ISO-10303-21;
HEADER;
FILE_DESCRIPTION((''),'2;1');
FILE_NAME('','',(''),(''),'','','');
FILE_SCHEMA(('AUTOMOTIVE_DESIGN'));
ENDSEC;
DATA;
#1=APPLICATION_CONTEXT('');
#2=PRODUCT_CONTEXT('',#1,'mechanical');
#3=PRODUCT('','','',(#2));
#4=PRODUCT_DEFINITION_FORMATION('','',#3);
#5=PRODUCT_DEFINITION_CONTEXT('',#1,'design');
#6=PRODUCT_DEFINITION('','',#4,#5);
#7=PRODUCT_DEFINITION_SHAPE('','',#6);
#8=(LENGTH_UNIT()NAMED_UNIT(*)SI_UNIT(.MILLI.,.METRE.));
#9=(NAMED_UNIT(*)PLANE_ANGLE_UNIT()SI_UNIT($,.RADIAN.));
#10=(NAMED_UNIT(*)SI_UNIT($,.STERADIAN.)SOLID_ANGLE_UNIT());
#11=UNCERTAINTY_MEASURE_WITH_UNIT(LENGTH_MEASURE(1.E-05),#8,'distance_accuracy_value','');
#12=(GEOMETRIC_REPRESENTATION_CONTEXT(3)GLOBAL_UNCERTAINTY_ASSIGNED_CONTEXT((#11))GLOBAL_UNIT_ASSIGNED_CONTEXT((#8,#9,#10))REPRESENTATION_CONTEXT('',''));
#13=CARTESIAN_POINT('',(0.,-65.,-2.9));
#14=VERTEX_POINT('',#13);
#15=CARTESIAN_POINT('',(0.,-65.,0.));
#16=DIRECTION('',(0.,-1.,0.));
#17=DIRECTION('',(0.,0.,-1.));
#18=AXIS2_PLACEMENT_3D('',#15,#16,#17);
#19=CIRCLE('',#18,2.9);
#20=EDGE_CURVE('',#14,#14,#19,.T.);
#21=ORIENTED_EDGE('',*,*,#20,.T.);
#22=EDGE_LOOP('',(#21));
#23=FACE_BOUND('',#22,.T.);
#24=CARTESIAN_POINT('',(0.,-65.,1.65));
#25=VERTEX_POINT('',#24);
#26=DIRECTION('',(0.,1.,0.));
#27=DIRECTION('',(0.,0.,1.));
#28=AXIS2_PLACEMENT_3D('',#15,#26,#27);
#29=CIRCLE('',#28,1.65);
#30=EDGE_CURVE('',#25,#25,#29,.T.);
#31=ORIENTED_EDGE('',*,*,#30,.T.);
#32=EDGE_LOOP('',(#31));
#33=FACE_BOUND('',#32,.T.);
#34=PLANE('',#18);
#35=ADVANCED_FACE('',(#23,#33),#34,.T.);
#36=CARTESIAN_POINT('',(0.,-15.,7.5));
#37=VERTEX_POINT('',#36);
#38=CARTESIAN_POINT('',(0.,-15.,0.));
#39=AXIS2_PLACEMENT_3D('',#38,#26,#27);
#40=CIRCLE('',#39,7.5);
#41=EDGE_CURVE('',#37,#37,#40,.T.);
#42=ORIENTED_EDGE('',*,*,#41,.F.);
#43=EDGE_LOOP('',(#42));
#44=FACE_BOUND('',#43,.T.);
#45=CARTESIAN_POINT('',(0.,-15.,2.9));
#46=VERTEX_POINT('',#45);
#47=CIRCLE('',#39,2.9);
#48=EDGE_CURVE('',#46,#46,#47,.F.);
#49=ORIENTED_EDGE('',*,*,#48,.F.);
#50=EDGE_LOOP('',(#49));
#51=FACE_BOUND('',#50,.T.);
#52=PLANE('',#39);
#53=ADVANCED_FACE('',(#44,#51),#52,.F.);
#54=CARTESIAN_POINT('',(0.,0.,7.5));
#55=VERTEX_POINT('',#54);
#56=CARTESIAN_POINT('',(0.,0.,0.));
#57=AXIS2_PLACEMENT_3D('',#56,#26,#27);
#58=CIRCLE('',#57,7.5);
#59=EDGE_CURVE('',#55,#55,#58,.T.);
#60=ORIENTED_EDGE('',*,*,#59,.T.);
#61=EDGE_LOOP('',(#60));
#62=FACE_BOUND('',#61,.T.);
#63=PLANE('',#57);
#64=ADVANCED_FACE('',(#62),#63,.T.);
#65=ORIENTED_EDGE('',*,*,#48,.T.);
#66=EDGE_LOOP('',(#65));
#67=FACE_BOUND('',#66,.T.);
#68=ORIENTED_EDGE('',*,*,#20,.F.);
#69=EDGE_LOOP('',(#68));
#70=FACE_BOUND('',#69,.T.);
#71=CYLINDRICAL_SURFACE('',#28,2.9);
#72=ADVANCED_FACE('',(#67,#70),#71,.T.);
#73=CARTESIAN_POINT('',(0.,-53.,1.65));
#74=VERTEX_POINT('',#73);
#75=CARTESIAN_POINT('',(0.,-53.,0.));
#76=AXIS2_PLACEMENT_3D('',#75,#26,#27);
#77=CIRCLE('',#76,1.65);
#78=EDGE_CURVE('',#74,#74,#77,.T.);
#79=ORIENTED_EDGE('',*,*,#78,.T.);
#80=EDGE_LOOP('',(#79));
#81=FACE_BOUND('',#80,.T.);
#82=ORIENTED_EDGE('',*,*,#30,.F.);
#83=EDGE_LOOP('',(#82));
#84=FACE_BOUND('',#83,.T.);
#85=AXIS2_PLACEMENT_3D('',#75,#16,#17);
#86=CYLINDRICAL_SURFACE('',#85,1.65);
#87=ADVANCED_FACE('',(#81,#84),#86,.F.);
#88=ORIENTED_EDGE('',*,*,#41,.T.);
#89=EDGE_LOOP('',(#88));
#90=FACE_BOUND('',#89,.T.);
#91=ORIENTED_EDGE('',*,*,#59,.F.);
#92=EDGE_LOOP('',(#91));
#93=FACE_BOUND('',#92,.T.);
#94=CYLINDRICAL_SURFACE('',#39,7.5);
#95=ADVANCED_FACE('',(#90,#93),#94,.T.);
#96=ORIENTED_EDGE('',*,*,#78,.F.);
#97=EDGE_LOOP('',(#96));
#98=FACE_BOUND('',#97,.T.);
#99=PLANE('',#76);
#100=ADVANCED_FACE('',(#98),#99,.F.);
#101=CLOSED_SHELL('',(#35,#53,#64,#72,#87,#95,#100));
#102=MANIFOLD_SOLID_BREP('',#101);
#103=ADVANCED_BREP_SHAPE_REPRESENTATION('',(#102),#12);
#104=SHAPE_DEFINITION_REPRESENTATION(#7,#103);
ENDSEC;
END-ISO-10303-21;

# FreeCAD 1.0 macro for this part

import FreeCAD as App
import Part
import Sketcher

doc = App.newDocument("Part")
params = doc.addObject("Spreadsheet::Sheet", "Params")
for row, (alias, value) in enumerate([
    ("sketch1_diameter", "15 mm"),
    ("pad1_length", "15 mm"),
    ("sketch2_diameter", "5.8 mm"),
    ("pad2_length", "50 mm"),
    ("sketch3_diameter", "3.3 mm"),
    ("pocket1_length", "12 mm"),
], start=1):
    params.set(f"A{row}", alias)
    params.set(f"B{row}", "=" + value)
    params.setAlias(f"B{row}", alias)

body = doc.addObject("PartDesign::Body", "Body")

# Sketch on XZ plane
sketch1 = body.newObject("Sketcher::SketchObject", "Sketch")
sketch1.AttachmentSupport = (doc.getObject("XZ_Plane"), [""])
sketch1.MapMode = "FlatFace"
sketch1.addGeometry(Part.Circle(App.Vector(0, 0, 0), App.Vector(0, 0, 1), 7.5), False)
sketch1.addConstraint([
    Sketcher.Constraint("Coincident", 0, 3, -1, 1),
    Sketcher.Constraint("Diameter", 0, 15.0),
])
sketch1.setExpression("Constraints[1]", "Params.sketch1_diameter")
pad1 = body.newObject("PartDesign::Pad", "Pad")
pad1.Profile = sketch1
pad1.setExpression("Length", "Params.pad1_length")

# Sketch on XZ plane
sketch2 = body.newObject("Sketcher::SketchObject", "Sketch001")
sketch2.AttachmentSupport = (doc.getObject("XZ_Plane"), [""])
sketch2.MapMode = "FlatFace"
sketch2.AttachmentOffset = App.Placement(App.Vector(0, 0, 15), App.Rotation())
sketch2.addGeometry(Part.Circle(App.Vector(0, 0, 0), App.Vector(0, 0, 1), 2.9), False)
sketch2.addConstraint([
    Sketcher.Constraint("Coincident", 0, 3, -1, 1),
    Sketcher.Constraint("Diameter", 0, 5.8),
])
sketch2.setExpression("Constraints[1]", "Params.sketch2_diameter")
pad2 = body.newObject("PartDesign::Pad", "Pad001")
pad2.Profile = sketch2
pad2.setExpression("Length", "Params.pad2_length")

# Sketch on XZ plane
sketch3 = body.newObject("Sketcher::SketchObject", "Sketch002")
sketch3.AttachmentSupport = (doc.getObject("XZ_Plane"), [""])
sketch3.MapMode = "FlatFace"
sketch3.AttachmentOffset = App.Placement(App.Vector(0, 0, 65), App.Rotation())
sketch3.addGeometry(Part.Circle(App.Vector(0, 0, 0), App.Vector(0, 0, 1), 1.65), False)
sketch3.addConstraint([
    Sketcher.Constraint("Coincident", 0, 3, -1, 1),
    Sketcher.Constraint("Diameter", 0, 3.3),
])
sketch3.setExpression("Constraints[1]", "Params.sketch3_diameter")
pocket1 = body.newObject("PartDesign::Pocket", "Pocket")
pocket1.Profile = sketch3
pocket1.setExpression("Length", "Params.pocket1_length")

doc.recompute()
